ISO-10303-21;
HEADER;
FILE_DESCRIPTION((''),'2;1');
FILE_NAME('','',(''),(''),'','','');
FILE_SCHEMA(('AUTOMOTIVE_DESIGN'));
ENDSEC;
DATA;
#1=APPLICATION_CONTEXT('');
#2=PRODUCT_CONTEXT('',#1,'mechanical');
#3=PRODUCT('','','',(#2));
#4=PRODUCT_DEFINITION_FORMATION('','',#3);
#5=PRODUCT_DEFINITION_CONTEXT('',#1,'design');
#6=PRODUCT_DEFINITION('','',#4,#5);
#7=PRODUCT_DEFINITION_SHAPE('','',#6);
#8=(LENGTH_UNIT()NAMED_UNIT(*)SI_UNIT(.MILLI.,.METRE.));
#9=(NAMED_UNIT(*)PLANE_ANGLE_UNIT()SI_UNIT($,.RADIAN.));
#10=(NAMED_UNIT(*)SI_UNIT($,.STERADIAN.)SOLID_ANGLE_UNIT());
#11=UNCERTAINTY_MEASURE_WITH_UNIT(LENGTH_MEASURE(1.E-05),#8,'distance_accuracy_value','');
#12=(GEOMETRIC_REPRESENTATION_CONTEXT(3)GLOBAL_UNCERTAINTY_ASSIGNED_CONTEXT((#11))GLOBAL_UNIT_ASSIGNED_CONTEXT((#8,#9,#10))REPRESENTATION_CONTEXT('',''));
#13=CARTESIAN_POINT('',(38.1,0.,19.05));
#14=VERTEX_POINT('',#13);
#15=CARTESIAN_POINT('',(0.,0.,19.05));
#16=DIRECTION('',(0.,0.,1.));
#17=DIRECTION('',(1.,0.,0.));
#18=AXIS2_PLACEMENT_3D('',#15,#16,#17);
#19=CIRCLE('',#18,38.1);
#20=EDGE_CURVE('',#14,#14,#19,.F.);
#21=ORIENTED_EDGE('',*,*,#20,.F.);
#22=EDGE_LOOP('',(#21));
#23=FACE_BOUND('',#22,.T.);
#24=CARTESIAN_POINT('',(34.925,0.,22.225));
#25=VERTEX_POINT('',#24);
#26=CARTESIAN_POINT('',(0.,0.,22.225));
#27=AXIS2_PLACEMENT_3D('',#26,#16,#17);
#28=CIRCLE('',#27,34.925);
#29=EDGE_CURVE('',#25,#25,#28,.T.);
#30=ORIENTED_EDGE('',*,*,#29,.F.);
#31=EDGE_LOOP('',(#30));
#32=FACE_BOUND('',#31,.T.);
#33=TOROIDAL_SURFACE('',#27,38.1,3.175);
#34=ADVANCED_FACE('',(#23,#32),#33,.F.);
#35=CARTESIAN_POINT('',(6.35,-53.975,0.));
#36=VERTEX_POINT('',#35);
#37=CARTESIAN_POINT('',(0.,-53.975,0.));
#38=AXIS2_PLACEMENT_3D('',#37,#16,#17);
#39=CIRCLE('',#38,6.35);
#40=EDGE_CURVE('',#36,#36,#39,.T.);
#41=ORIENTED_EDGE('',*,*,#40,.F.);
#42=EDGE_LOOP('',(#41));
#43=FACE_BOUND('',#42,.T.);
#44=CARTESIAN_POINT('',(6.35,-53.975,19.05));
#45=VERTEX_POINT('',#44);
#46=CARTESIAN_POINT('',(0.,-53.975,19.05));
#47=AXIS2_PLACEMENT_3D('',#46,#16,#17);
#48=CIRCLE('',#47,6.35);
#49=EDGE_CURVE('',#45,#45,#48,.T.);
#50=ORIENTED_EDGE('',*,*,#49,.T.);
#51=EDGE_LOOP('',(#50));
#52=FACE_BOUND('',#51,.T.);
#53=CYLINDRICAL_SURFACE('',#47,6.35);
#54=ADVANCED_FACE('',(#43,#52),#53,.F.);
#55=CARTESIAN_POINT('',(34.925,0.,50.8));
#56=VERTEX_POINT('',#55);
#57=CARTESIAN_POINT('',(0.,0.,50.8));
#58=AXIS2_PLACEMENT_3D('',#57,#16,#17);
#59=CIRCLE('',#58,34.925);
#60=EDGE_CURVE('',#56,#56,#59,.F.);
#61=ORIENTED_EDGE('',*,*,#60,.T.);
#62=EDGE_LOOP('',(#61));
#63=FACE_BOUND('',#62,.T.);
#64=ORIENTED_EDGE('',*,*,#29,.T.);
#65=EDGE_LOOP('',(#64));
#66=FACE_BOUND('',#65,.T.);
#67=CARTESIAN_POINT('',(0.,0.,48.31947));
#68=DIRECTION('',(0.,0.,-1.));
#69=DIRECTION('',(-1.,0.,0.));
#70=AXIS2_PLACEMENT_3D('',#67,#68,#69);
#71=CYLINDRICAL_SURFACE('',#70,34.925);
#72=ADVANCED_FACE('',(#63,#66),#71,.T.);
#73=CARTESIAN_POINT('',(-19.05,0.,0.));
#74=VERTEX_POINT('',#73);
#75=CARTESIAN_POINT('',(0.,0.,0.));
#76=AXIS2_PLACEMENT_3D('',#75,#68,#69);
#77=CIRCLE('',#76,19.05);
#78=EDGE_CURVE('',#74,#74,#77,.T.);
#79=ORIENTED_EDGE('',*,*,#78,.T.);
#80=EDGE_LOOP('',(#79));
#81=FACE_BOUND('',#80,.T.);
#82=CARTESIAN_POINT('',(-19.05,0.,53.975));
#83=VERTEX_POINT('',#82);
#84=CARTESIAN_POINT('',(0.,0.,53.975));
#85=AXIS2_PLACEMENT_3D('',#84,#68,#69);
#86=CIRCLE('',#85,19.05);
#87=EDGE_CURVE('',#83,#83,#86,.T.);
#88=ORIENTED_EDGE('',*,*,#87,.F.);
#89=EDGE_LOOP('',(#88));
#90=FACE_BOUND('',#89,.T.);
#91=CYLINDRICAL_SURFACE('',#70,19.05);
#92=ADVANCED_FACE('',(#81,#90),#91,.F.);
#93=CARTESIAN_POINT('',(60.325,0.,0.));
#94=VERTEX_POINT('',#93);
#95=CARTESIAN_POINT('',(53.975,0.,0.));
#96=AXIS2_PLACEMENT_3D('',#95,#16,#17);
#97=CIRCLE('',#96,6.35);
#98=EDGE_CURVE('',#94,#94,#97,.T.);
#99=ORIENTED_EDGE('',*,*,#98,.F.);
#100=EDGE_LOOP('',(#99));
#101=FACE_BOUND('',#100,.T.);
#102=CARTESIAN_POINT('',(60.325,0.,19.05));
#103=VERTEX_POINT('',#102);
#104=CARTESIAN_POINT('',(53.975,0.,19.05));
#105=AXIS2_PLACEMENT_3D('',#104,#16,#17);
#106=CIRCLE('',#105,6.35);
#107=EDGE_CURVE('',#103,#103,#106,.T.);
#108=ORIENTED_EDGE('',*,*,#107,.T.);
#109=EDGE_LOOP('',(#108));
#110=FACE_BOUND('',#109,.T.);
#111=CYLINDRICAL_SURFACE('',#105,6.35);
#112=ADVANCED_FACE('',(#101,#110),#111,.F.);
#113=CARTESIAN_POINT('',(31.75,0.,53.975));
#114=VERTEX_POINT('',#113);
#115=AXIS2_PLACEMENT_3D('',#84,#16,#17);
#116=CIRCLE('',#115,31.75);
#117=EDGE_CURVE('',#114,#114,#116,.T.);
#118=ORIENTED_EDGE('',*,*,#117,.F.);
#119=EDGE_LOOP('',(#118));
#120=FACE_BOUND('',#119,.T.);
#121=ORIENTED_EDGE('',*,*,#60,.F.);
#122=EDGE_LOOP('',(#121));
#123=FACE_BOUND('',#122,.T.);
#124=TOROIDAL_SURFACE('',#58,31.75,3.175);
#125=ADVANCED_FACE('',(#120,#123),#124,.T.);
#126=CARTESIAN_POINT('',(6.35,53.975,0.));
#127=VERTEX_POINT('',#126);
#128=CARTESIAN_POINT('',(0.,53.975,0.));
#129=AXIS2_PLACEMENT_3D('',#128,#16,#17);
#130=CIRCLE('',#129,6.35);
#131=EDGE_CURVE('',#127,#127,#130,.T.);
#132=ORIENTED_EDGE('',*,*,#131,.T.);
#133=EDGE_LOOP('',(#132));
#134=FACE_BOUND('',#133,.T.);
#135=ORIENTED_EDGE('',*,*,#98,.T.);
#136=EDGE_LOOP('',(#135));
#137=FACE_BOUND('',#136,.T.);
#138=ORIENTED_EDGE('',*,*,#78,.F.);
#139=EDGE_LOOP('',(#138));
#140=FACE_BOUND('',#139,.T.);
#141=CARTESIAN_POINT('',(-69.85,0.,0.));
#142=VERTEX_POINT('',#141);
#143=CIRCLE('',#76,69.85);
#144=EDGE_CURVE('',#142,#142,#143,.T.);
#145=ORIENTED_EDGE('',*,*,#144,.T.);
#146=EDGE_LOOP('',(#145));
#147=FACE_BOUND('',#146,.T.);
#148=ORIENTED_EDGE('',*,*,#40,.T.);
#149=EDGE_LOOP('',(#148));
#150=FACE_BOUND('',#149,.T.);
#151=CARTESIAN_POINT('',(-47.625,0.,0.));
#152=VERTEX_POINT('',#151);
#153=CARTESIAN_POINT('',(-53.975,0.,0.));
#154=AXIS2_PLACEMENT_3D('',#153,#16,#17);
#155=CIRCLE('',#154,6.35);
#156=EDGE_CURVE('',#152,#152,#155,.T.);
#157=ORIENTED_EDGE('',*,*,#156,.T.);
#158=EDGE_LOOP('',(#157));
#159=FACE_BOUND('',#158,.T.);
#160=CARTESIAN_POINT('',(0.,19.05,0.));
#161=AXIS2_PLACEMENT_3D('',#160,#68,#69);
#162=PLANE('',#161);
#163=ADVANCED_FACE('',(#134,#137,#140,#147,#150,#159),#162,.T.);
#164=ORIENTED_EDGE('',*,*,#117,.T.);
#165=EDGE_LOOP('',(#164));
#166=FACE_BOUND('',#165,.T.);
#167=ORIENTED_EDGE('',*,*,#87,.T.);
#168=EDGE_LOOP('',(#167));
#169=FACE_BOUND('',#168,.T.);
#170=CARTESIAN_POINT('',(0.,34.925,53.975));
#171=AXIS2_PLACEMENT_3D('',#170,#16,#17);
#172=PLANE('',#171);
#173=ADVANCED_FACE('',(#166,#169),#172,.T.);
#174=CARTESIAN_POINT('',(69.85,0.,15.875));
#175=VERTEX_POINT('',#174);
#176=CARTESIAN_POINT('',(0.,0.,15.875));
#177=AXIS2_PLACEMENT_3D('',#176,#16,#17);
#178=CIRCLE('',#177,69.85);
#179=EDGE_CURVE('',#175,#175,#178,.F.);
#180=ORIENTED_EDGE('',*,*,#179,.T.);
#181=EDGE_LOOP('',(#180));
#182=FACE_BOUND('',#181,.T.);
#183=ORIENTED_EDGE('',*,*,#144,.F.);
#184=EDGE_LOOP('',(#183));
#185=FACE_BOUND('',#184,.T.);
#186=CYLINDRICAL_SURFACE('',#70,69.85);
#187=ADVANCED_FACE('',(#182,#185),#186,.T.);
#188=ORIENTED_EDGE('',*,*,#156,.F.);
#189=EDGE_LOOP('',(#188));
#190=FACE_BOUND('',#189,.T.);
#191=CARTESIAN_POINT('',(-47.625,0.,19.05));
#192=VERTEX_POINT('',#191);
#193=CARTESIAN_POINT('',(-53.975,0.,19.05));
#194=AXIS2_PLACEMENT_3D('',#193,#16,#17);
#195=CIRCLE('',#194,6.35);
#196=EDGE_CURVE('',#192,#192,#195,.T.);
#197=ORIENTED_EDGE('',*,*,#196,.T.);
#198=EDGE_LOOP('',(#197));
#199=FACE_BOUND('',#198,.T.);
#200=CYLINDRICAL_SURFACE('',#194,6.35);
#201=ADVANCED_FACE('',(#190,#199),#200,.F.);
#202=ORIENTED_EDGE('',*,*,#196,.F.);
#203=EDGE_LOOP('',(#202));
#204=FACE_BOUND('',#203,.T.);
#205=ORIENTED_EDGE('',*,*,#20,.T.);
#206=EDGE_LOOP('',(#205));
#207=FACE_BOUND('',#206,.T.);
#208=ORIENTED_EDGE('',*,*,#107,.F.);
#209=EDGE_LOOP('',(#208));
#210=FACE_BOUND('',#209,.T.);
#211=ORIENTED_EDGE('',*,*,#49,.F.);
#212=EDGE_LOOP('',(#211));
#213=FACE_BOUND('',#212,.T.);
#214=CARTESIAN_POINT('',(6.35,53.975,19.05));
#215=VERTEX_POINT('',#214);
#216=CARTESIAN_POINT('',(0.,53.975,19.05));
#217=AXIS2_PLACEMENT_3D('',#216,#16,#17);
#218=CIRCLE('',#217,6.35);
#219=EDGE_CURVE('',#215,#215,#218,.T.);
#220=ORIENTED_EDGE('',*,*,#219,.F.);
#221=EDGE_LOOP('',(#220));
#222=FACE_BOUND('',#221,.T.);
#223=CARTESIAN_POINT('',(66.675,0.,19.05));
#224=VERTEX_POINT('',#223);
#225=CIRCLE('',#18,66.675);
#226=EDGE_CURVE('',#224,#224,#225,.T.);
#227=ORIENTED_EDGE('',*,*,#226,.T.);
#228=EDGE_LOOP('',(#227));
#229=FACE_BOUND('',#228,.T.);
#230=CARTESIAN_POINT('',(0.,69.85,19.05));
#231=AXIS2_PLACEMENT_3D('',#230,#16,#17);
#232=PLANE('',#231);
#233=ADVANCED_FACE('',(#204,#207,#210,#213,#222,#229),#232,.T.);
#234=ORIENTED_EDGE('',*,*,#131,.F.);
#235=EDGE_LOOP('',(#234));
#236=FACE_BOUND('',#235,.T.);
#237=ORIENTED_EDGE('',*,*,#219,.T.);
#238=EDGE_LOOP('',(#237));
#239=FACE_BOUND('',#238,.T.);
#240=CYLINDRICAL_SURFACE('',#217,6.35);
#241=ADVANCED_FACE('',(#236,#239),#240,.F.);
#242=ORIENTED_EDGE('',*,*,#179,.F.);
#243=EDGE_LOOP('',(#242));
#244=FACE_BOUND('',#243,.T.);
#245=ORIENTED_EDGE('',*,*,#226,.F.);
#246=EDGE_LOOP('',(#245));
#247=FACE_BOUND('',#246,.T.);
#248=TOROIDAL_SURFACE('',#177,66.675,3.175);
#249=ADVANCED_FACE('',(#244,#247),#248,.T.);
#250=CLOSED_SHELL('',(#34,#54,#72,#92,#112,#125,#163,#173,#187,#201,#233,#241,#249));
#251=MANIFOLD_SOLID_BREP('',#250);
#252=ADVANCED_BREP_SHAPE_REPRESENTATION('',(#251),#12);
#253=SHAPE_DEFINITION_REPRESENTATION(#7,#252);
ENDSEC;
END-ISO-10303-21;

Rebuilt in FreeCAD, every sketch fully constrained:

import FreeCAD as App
import Part
import Sketcher
from FreeCAD import Vector
Q = App.Units.Quantity


def edges_at(feature, points):
    """Names of the edges that pass closest to the given points."""
    edges = feature.Shape.Edges
    near = lambda p: min(range(len(edges)), key=lambda i: edges[i].distToShape(Part.Vertex(*p))[0])
    return sorted({f"Edge{near(p) + 1}" for p in points})


def add_polygon(sketch, points):
    """Adds a closed chain of lines whose ends are joined by coincident constraints."""
    first, n = sketch.GeometryCount, len(points)
    for a, b in zip(points, points[1:] + points[:1]):
        sketch.addGeometry(Part.LineSegment(App.Vector(*a, 0), App.Vector(*b, 0)), False)
    for i in range(n):
        sketch.addConstraint(Sketcher.Constraint("Coincident", first + i, 2, first + (i + 1) % n, 1))

doc = App.newDocument("Part")
body = doc.addObject("PartDesign::Body", "Body")

# Sketch on YZ plane
sketch1 = doc.addObject("Sketcher::SketchObject", "Sketch")
body.addObject(sketch1)
sketch1.AttachmentSupport = (doc.YZ_Plane, [""])
sketch1.MapMode = "FlatFace"
add_polygon(sketch1, [(19, 0), (70, 0), (70, 19), (35, 19), (35, 54), (19, 54)])  # lines 0-5
sketch1.addConstraint([
    Sketcher.Constraint("Horizontal", 0),
    Sketcher.Constraint("Vertical", 1),
    Sketcher.Constraint("Horizontal", 2),
    Sketcher.Constraint("Vertical", 3),
    Sketcher.Constraint("Horizontal", 4),
    Sketcher.Constraint("Vertical", 5),
    Sketcher.Constraint("PointOnObject", 0, 2, -1),
    Sketcher.Constraint("Equal", 2, 3),
    Sketcher.Constraint("DistanceX", 0, 1, 0, 2, Q("2 in")),
    Sketcher.Constraint("DistanceY", 1, 1, 1, 2, Q("0.75 in")),
    Sketcher.Constraint("DistanceX", 2, 2, 2, 1, Q("1.375 in")),
    Sketcher.Constraint("DistanceX", -1, 1, 0, 2, Q("2.75 in")),
])
revolution = doc.addObject("PartDesign::Revolution", "Revolution")
body.addObject(revolution)
revolution.Profile = sketch1
revolution.ReferenceAxis = (sketch1, ["V_Axis"])
revolution.Angle = 360

# Sketch on XY plane
sketch2 = doc.addObject("Sketcher::SketchObject", "Sketch001")
body.addObject(sketch2)
sketch2.AttachmentSupport = (doc.XY_Plane, [""])
sketch2.MapMode = "FlatFace"
sketch2.AttachmentOffset = App.Placement(Vector(0, 0, 0.75 * 25.4), App.Rotation())
sketch2.addGeometry(Part.Circle(Vector(0, 54, 0), Vector(0, 0, 1), 6), False)
sketch2.addConstraint([
    Sketcher.Constraint("PointOnObject", 0, 3, -2),
    Sketcher.Constraint("Diameter", 0, Q("0.5 in")),
    Sketcher.Constraint("DistanceY", -1, 1, 0, 3, Q("2.125 in")),
])
doc.recompute()
hole = doc.addObject("PartDesign::Hole", "Hole")
body.addObject(hole)
hole.Profile = sketch2
hole.ThreadType = "None"
hole.Diameter = Q("0.5 in")
hole.DepthType = "ThroughAll"
doc.recompute()

polarpattern = doc.addObject("PartDesign::PolarPattern", "PolarPattern")
body.addObject(polarpattern)
polarpattern.Originals = [hole]
polarpattern.Axis = (doc.Z_Axis, [""])
polarpattern.Angle = 360
polarpattern.Occurrences = 4
body.Tip = polarpattern
doc.recompute()

fillet = doc.addObject("PartDesign::Fillet", "Fillet")
body.addObject(fillet)
fillet.Base = (polarpattern, edges_at(polarpattern, [(34.925, 0, 53.975), (34.925, 0, 19.05), (69.85, 0, 19.05)]))
fillet.Radius = Q("0.125 in")

doc.recompute()
